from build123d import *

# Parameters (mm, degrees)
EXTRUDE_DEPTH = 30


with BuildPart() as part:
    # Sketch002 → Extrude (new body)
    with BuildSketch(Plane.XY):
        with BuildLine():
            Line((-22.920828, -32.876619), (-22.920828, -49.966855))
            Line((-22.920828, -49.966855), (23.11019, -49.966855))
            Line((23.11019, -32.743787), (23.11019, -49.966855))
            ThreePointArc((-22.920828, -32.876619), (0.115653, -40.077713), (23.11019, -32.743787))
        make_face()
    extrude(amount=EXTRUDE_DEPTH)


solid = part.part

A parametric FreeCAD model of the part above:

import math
import FreeCAD as App
import Part
import Sketcher
from FreeCAD import Vector

doc = App.newDocument("Part")
body = doc.addObject("PartDesign::Body", "Body")

sketch1 = body.newObject("Sketcher::SketchObject", "Sketch")
sketch1.AttachmentSupport = (doc.getObject("XY_Plane"), [""])
sketch1.MapMode = "FlatFace"
sketch1.addGeometry([
    Part.LineSegment(Vector(-23, -33, 0), Vector(-23, -50, 0)),
    Part.LineSegment(Vector(-23, -50, 0), Vector(23, -50, 0)),
    Part.LineSegment(Vector(23, -50, 0), Vector(23, -33, 0)),
    Part.ArcOfCircle(Part.Circle(Vector(0, 0, 0), Vector(0, 0, 1), 40), math.radians(-125), math.radians(-55)),
], False)
sketch1.addConstraint([
    Sketcher.Constraint("Coincident", 0, 2, 1, 1),
    Sketcher.Constraint("Coincident", 1, 2, 2, 1),
    Sketcher.Constraint("Coincident", 2, 2, 3, 2),
    Sketcher.Constraint("Coincident", 3, 1, 0, 1),
    Sketcher.Constraint("Vertical", 0),
    Sketcher.Constraint("Horizontal", 1),
    Sketcher.Constraint("Vertical", 2),
    Sketcher.Constraint("Coincident", 3, 3, -1, 1),
    Sketcher.Constraint("Radius", 3, 40.07788),
    Sketcher.Constraint("DistanceX", 1, 1, 1, 2, 46.031018),
    Sketcher.Constraint("DistanceY", 2, 1, 2, 2, 17.223068),
    Sketcher.Constraint("DistanceY", 0, 2, 0, 1, 17.090236),
])
pad1 = body.newObject("PartDesign::Pad", "Pad")
pad1.Profile = sketch1
pad1.Length = 30

doc.recompute()
